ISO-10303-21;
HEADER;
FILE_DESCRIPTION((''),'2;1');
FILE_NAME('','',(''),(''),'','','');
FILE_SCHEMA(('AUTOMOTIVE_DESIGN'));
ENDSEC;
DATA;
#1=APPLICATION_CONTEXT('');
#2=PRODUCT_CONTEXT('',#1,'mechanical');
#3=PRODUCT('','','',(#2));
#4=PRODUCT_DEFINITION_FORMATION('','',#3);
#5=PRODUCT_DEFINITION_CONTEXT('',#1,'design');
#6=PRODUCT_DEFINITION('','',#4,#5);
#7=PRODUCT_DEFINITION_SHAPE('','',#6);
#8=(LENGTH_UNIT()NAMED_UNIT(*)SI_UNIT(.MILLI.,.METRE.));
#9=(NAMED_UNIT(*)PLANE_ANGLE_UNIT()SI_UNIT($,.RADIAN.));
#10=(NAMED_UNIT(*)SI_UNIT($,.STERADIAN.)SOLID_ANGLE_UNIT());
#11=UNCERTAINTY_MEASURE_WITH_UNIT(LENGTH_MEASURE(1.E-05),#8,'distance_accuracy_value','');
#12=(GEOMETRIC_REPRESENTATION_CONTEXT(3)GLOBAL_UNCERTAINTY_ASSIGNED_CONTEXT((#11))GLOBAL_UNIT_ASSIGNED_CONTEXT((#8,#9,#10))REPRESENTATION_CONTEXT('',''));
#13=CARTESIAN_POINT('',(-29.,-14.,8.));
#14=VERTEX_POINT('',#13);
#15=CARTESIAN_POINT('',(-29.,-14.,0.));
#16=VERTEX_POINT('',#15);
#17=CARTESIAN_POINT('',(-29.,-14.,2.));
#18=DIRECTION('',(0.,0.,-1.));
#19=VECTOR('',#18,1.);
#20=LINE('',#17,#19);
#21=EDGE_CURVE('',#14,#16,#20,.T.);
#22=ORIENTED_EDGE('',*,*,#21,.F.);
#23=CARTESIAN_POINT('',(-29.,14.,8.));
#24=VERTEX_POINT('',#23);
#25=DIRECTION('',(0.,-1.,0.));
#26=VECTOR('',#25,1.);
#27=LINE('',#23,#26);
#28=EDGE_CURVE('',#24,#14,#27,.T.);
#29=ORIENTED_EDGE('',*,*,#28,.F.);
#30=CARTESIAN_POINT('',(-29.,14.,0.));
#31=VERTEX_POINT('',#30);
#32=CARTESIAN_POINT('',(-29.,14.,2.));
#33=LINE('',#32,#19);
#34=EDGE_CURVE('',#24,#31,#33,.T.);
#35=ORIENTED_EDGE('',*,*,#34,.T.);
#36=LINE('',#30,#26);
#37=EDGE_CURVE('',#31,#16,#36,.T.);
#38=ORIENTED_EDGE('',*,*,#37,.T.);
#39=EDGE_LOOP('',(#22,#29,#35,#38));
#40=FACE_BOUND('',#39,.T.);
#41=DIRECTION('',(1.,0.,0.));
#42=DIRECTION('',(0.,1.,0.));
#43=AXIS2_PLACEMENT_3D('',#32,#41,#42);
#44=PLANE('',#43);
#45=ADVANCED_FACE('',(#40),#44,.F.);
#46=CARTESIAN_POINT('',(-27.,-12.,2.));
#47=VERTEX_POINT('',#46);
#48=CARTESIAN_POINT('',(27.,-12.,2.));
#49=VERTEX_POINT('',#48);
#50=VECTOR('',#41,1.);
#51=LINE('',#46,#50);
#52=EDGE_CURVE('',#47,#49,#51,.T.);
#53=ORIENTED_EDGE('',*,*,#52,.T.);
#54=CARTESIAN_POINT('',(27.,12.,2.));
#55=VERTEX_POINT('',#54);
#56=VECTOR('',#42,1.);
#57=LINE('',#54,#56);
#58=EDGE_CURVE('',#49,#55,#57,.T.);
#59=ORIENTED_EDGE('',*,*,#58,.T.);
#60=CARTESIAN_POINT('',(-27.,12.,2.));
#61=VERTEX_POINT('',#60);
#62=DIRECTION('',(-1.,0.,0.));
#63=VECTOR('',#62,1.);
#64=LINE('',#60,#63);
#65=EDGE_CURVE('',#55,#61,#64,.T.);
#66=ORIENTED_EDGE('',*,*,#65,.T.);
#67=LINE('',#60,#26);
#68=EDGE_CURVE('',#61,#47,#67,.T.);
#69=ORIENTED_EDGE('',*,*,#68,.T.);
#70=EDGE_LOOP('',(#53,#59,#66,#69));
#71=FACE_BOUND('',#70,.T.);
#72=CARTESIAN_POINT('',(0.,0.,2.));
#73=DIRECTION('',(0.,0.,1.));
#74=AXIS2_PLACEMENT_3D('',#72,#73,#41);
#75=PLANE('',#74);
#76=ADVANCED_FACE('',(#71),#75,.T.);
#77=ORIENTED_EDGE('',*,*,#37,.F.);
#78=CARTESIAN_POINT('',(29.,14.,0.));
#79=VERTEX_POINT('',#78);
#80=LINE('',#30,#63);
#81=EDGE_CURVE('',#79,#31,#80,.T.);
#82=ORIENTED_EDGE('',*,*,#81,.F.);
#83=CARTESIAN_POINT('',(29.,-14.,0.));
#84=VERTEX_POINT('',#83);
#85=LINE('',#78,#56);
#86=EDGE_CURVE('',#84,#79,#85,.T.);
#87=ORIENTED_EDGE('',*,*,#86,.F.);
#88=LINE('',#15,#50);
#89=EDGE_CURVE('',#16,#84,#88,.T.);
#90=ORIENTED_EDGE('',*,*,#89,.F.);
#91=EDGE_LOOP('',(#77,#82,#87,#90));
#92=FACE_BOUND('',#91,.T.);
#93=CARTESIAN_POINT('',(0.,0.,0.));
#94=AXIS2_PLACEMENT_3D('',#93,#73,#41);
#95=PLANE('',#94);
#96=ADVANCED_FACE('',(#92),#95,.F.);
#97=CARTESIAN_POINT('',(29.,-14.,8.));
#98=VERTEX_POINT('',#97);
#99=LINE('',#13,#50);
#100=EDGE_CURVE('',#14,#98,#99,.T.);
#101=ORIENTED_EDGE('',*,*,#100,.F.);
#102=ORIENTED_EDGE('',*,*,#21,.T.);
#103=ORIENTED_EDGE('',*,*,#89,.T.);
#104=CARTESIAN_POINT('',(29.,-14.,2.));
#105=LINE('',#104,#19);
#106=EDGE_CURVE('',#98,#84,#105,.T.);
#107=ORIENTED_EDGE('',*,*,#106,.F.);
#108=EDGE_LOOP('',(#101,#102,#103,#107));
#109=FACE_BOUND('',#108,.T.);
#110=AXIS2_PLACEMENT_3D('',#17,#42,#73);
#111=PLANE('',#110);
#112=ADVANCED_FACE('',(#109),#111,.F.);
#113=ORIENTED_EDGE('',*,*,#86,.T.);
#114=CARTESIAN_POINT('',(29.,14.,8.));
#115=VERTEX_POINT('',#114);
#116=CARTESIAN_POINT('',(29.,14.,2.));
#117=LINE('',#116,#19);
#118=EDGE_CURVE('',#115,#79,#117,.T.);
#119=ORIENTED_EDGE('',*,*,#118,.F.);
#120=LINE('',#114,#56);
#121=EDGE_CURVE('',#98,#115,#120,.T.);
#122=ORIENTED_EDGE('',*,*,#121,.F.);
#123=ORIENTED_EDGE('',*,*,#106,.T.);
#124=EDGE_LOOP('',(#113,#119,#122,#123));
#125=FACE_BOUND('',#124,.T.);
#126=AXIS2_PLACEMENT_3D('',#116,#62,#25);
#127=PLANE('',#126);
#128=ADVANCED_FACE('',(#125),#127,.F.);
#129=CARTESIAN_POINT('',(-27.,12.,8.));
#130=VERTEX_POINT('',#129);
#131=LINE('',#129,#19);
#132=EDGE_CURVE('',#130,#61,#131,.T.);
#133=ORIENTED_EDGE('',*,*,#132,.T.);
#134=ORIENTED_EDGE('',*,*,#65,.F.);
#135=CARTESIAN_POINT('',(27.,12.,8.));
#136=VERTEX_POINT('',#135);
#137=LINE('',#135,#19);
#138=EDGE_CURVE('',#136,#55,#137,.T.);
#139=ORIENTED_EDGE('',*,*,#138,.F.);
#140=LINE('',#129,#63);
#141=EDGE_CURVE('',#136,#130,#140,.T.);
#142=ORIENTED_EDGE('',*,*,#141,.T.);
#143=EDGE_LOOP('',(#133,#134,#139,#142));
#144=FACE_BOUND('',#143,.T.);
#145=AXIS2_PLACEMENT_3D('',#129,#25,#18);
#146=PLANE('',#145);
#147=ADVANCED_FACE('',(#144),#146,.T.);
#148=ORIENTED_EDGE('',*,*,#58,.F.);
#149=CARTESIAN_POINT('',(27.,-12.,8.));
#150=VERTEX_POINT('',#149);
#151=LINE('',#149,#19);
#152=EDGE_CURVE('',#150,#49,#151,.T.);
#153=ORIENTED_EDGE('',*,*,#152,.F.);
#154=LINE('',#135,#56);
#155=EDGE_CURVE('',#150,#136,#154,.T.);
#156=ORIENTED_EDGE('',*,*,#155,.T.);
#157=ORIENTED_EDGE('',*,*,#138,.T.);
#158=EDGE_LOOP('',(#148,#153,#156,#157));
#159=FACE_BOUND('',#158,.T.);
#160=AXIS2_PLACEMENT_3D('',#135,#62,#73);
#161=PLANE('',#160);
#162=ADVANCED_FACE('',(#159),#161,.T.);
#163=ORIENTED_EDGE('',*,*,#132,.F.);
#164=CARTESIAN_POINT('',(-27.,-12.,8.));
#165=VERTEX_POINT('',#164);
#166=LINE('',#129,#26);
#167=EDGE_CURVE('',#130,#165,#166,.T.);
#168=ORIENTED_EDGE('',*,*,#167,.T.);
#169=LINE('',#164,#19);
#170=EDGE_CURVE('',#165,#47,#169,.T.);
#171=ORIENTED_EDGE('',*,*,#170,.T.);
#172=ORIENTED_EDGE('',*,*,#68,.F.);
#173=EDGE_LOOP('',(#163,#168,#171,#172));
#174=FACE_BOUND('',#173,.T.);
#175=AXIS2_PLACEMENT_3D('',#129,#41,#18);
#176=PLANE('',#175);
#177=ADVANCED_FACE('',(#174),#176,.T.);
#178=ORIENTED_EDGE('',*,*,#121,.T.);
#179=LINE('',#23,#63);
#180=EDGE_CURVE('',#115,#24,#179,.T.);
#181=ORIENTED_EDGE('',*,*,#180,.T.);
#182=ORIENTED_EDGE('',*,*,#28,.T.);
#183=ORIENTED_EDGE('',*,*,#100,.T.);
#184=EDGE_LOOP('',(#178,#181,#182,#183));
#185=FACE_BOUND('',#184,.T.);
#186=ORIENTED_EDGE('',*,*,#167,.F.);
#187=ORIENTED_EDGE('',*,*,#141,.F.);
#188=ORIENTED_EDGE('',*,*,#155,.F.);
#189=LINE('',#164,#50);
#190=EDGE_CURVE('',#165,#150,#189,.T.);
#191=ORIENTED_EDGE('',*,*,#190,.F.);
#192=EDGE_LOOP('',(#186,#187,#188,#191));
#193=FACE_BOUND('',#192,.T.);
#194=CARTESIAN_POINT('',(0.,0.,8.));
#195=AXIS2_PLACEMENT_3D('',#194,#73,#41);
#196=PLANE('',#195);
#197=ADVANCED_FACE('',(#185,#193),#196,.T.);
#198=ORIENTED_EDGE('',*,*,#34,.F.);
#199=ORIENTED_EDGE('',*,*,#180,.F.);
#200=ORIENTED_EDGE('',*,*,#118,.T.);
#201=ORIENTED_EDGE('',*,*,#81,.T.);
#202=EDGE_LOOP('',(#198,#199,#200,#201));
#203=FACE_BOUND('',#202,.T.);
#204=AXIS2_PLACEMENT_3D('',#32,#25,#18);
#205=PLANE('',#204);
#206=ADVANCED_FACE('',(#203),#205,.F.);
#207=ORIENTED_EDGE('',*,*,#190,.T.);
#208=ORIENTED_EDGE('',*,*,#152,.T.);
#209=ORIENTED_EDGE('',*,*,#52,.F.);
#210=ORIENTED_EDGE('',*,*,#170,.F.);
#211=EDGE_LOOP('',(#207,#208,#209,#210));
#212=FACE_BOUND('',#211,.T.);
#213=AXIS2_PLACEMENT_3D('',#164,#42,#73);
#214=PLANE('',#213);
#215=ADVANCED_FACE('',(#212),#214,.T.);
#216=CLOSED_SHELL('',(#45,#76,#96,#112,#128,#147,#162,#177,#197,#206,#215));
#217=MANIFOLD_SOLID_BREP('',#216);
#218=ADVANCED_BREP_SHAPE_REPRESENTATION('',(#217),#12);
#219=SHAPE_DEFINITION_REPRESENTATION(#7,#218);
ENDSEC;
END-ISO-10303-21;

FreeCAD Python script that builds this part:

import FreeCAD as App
import Part
import Sketcher

V = App.Vector
Q = App.Units.Quantity

doc = App.newDocument("Part")
params = doc.addObject("Spreadsheet::Sheet", "Params")
for row, (alias, value) in enumerate([
    ("sketch1_width", "58 mm"),
    ("sketch1_height", "28 mm"),
    ("pad1_length", "2 mm"),
    ("sketch2_width", "58 mm"),
    ("sketch2_width2", "54 mm"),
    ("sketch2_height", "28 mm"),
    ("sketch2_height2", "24 mm"),
    ("pad2_length", "6 mm"),
], start=1):
    params.set(f"A{row}", alias)
    params.set(f"B{row}", "=" + value)
    params.setAlias(f"B{row}", alias)

body = doc.addObject("PartDesign::Body", "Body")

# Sketch on XY plane
sketch1 = body.newObject("Sketcher::SketchObject", "Sketch")
sketch1.AttachmentSupport = (doc.getObject("XY_Plane"), [""])
sketch1.MapMode = "FlatFace"
sketch1.addGeometry(Part.LineSegment(V(-29, 14, 0), V(-29, -14, 0)), False)
sketch1.addGeometry(Part.LineSegment(V(-29, -14, 0), V(29, -14, 0)), False)
sketch1.addGeometry(Part.LineSegment(V(29, -14, 0), V(29, 14, 0)), False)
sketch1.addGeometry(Part.LineSegment(V(29, 14, 0), V(-29, 14, 0)), False)
sketch1.addConstraint(Sketcher.Constraint("Coincident", 0, 2, 1, 1))
sketch1.addConstraint(Sketcher.Constraint("Coincident", 1, 2, 2, 1))
sketch1.addConstraint(Sketcher.Constraint("Coincident", 2, 2, 3, 1))
sketch1.addConstraint(Sketcher.Constraint("Coincident", 3, 2, 0, 1))
sketch1.addConstraint(Sketcher.Constraint("Vertical", 0))
sketch1.addConstraint(Sketcher.Constraint("Horizontal", 1))
sketch1.addConstraint(Sketcher.Constraint("Vertical", 2))
sketch1.addConstraint(Sketcher.Constraint("Horizontal", 3))
sketch1.addConstraint(Sketcher.Constraint("Symmetric", 0, 2, 2, 2, -1, 1))
sketch1.addConstraint(Sketcher.Constraint("DistanceX", 1, 1, 1, 2, Q("58 mm")))
sketch1.addConstraint(Sketcher.Constraint("DistanceY", 0, 2, 0, 1, Q("28 mm")))
sketch1.setExpression("Constraints[9]", "Params.sketch1_width")
sketch1.setExpression("Constraints[10]", "Params.sketch1_height")
pad1 = body.newObject("PartDesign::Pad", "Pad")
pad1.Profile = sketch1
pad1.setExpression("Length", "Params.pad1_length")

# Sketch on XY plane
sketch2 = body.newObject("Sketcher::SketchObject", "Sketch001")
sketch2.AttachmentSupport = (doc.getObject("XY_Plane"), [""])
sketch2.MapMode = "FlatFace"
sketch2.AttachmentOffset = App.Placement(V(0, 0, 2), App.Rotation())
sketch2.addGeometry(Part.LineSegment(V(-29, 14, 0), V(-29, -14, 0)), False)
sketch2.addGeometry(Part.LineSegment(V(-29, -14, 0), V(29, -14, 0)), False)
sketch2.addGeometry(Part.LineSegment(V(29, -14, 0), V(29, 14, 0)), False)
sketch2.addGeometry(Part.LineSegment(V(29, 14, 0), V(-29, 14, 0)), False)
sketch2.addGeometry(Part.LineSegment(V(27, -12, 0), V(-27, -12, 0)), False)
sketch2.addGeometry(Part.LineSegment(V(-27, -12, 0), V(-27, 12, 0)), False)
sketch2.addGeometry(Part.LineSegment(V(-27, 12, 0), V(27, 12, 0)), False)
sketch2.addGeometry(Part.LineSegment(V(27, 12, 0), V(27, -12, 0)), False)
sketch2.addConstraint(Sketcher.Constraint("Coincident", 0, 2, 1, 1))
sketch2.addConstraint(Sketcher.Constraint("Coincident", 1, 2, 2, 1))
sketch2.addConstraint(Sketcher.Constraint("Coincident", 2, 2, 3, 1))
sketch2.addConstraint(Sketcher.Constraint("Coincident", 3, 2, 0, 1))
sketch2.addConstraint(Sketcher.Constraint("Coincident", 4, 2, 5, 1))
sketch2.addConstraint(Sketcher.Constraint("Coincident", 5, 2, 6, 1))
sketch2.addConstraint(Sketcher.Constraint("Coincident", 6, 2, 7, 1))
sketch2.addConstraint(Sketcher.Constraint("Coincident", 7, 2, 4, 1))
sketch2.addConstraint(Sketcher.Constraint("Vertical", 0))
sketch2.addConstraint(Sketcher.Constraint("Horizontal", 1))
sketch2.addConstraint(Sketcher.Constraint("Vertical", 2))
sketch2.addConstraint(Sketcher.Constraint("Horizontal", 3))
sketch2.addConstraint(Sketcher.Constraint("Horizontal", 4))
sketch2.addConstraint(Sketcher.Constraint("Vertical", 5))
sketch2.addConstraint(Sketcher.Constraint("Horizontal", 6))
sketch2.addConstraint(Sketcher.Constraint("Vertical", 7))
sketch2.addConstraint(Sketcher.Constraint("Symmetric", 0, 2, 2, 2, -1, 1))
sketch2.addConstraint(Sketcher.Constraint("Symmetric", 4, 2, 6, 2, -1, 1))
sketch2.addConstraint(Sketcher.Constraint("DistanceX", 1, 1, 1, 2, Q("58 mm")))
sketch2.addConstraint(Sketcher.Constraint("DistanceX", 4, 2, 4, 1, Q("54 mm")))
sketch2.addConstraint(Sketcher.Constraint("DistanceY", 0, 2, 0, 1, Q("28 mm")))
sketch2.addConstraint(Sketcher.Constraint("DistanceY", 5, 1, 5, 2, Q("24 mm")))
sketch2.setExpression("Constraints[18]", "Params.sketch2_width")
sketch2.setExpression("Constraints[19]", "Params.sketch2_width2")
sketch2.setExpression("Constraints[20]", "Params.sketch2_height")
sketch2.setExpression("Constraints[21]", "Params.sketch2_height2")
pad2 = body.newObject("PartDesign::Pad", "Pad001")
pad2.Profile = sketch2
pad2.setExpression("Length", "Params.pad2_length")

doc.recompute()
